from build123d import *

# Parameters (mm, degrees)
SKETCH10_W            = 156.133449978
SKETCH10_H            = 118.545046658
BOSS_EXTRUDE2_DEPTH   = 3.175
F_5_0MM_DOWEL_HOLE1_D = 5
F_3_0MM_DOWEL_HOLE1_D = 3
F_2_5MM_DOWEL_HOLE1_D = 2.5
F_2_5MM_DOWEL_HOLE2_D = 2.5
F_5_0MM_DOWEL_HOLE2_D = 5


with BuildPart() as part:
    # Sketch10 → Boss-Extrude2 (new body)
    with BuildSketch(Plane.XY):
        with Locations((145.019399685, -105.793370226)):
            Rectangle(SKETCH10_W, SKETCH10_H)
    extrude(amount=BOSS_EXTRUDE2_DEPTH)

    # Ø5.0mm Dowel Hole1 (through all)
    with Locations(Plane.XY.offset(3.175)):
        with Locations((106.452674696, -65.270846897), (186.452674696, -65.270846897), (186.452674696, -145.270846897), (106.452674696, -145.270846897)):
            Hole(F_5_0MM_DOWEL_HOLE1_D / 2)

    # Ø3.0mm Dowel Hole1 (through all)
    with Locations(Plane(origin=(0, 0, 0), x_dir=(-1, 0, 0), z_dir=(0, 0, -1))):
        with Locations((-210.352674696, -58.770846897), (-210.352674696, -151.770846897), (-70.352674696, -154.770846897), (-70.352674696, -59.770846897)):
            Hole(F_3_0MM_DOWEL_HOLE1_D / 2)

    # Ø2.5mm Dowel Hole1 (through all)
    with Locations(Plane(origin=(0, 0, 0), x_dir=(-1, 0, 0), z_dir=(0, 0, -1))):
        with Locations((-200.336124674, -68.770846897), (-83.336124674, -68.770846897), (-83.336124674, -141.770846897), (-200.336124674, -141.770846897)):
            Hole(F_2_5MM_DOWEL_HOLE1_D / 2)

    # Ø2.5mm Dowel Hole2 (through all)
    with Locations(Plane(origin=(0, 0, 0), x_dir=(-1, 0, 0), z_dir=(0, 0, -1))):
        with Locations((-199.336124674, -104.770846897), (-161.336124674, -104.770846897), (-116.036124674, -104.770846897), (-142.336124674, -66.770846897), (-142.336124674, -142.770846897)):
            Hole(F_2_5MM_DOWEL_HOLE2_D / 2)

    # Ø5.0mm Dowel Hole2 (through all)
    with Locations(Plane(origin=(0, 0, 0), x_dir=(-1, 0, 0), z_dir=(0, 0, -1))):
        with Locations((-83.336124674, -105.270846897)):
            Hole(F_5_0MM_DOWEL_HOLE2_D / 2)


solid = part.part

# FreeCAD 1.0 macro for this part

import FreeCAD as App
import Part
import Sketcher

doc = App.newDocument("Part")
params = doc.addObject("Spreadsheet::Sheet", "Params")
for row, (alias, value) in enumerate([
    ("pad1_length", "3.175 mm"),
    ("sketch2_diameter", "5 mm"),
    ("hole_diameter", "5 mm"),
    ("sketch3_diameter", "3 mm"),
    ("hole2_diameter", "3 mm"),
    ("sketch4_diameter", "2.5 mm"),
    ("hole3_diameter", "2.5 mm"),
    ("sketch5_diameter", "2.5 mm"),
    ("hole4_diameter", "2.5 mm"),
    ("sketch6_diameter", "5 mm"),
    ("hole5_diameter", "5 mm"),
], start=1):
    params.set(f"A{row}", alias)
    params.set(f"B{row}", "=" + value)
    params.setAlias(f"B{row}", alias)

body = doc.addObject("PartDesign::Body", "Body")

sketch1 = body.newObject("Sketcher::SketchObject", "Sketch")
sketch1.AttachmentSupport = (doc.getObject("XY_Plane"), [""])
sketch1.MapMode = "FlatFace"
sketch1.addGeometry([
    Part.LineSegment(App.Vector(66.952675, -46.520847, 0), App.Vector(66.952675, -165.065894, 0)),
    Part.LineSegment(App.Vector(66.952675, -165.065894, 0), App.Vector(223.086125, -165.065894, 0)),
    Part.LineSegment(App.Vector(223.086125, -165.065894, 0), App.Vector(223.086125, -46.520847, 0)),
    Part.LineSegment(App.Vector(223.086125, -46.520847, 0), App.Vector(66.952675, -46.520847, 0)),
], False)
sketch1.addConstraint([
    Sketcher.Constraint("Coincident", 0, 2, 1, 1),
    Sketcher.Constraint("Coincident", 1, 2, 2, 1),
    Sketcher.Constraint("Coincident", 2, 2, 3, 1),
    Sketcher.Constraint("Coincident", 3, 2, 0, 1),
    Sketcher.Constraint("Vertical", 0),
    Sketcher.Constraint("Horizontal", 1),
    Sketcher.Constraint("Vertical", 2),
    Sketcher.Constraint("Horizontal", 3),
    Sketcher.Constraint("DistanceX", 1, 1, 1, 2, 156.13345),
    Sketcher.Constraint("DistanceY", 0, 2, 0, 1, 118.545047),
    Sketcher.Constraint("DistanceX", -1, 1, 0, 2, 66.952675),
    Sketcher.Constraint("DistanceY", 0, 2, -1, 1, 165.065894),
])
pad1 = body.newObject("PartDesign::Pad", "Pad")
pad1.Profile = sketch1
pad1.setExpression("Length", "Params.pad1_length")

sketch2 = body.newObject("Sketcher::SketchObject", "Sketch001")
sketch2.AttachmentSupport = (doc.getObject("XY_Plane"), [""])
sketch2.MapMode = "FlatFace"
sketch2.AttachmentOffset = App.Placement(App.Vector(0, 0, 3.175), App.Rotation())
sketch2.addGeometry([
    Part.Circle(App.Vector(106.452675, -65.270847, 0), App.Vector(0, 0, 1), 2.5),
    Part.Circle(App.Vector(186.452675, -65.270847, 0), App.Vector(0, 0, 1), 2.5),
    Part.Circle(App.Vector(186.452675, -145.270847, 0), App.Vector(0, 0, 1), 2.5),
    Part.Circle(App.Vector(106.452675, -145.270847, 0), App.Vector(0, 0, 1), 2.5),
], False)
sketch2.addConstraint([
    Sketcher.Constraint("Equal", 0, 1),
    Sketcher.Constraint("Equal", 1, 2),
    Sketcher.Constraint("Equal", 2, 3),
    Sketcher.Constraint("Horizontal", 0, 3, 1, 3),
    Sketcher.Constraint("Horizontal", 2, 3, 3, 3),
    Sketcher.Constraint("Vertical", 1, 3, 2, 3),
    Sketcher.Constraint("Vertical", 0, 3, 3, 3),
    Sketcher.Constraint("Diameter", 0, 5.0),
    Sketcher.Constraint("DistanceX", 0, 3, 1, 3, 80.0),
    Sketcher.Constraint("DistanceY", 2, 3, 1, 3, 80.0),
    Sketcher.Constraint("DistanceX", -1, 1, 0, 3, 106.452675),
    Sketcher.Constraint("DistanceY", 0, 3, -1, 1, 65.270847),
])
sketch2.setExpression("Constraints[7]", "Params.sketch2_diameter")
doc.recompute()
hole = body.newObject("PartDesign::Hole", "Hole")
hole.Profile = sketch2
hole.ThreadType = "None"
hole.setExpression("Diameter", "Params.hole_diameter")
hole.DepthType = "ThroughAll"

sketch3 = body.newObject("Sketcher::SketchObject", "Sketch002")
sketch3.AttachmentSupport = (doc.getObject("XY_Plane"), [""])
sketch3.MapMode = "FlatFace"
sketch3.addGeometry([
    Part.Circle(App.Vector(210.352675, -58.770847, 0), App.Vector(0, 0, 1), 1.5),
    Part.Circle(App.Vector(210.352675, -151.770847, 0), App.Vector(0, 0, 1), 1.5),
    Part.Circle(App.Vector(70.352675, -154.770847, 0), App.Vector(0, 0, 1), 1.5),
    Part.Circle(App.Vector(70.352675, -59.770847, 0), App.Vector(0, 0, 1), 1.5),
], False)
sketch3.addConstraint([
    Sketcher.Constraint("Equal", 0, 1),
    Sketcher.Constraint("Equal", 1, 2),
    Sketcher.Constraint("Equal", 2, 3),
    Sketcher.Constraint("Vertical", 0, 3, 1, 3),
    Sketcher.Constraint("Vertical", 2, 3, 3, 3),
    Sketcher.Constraint("Diameter", 0, 3.0),
    Sketcher.Constraint("DistanceY", 1, 3, 0, 3, 93.0),
    Sketcher.Constraint("DistanceX", 2, 3, 1, 3, 140.0),
    Sketcher.Constraint("DistanceY", 2, 3, 1, 3, 3.0),
    Sketcher.Constraint("DistanceY", 2, 3, 3, 3, 95.0),
    Sketcher.Constraint("DistanceX", -1, 1, 0, 3, 210.352675),
    Sketcher.Constraint("DistanceY", 0, 3, -1, 1, 58.770847),
])
sketch3.setExpression("Constraints[5]", "Params.sketch3_diameter")
doc.recompute()
hole2 = body.newObject("PartDesign::Hole", "Hole001")
hole2.Profile = sketch3
hole2.ThreadType = "None"
hole2.setExpression("Diameter", "Params.hole2_diameter")
hole2.DepthType = "ThroughAll"
hole2.Reversed = True

sketch4 = body.newObject("Sketcher::SketchObject", "Sketch003")
sketch4.AttachmentSupport = (doc.getObject("XY_Plane"), [""])
sketch4.MapMode = "FlatFace"
sketch4.addGeometry([
    Part.Circle(App.Vector(200.336125, -68.770847, 0), App.Vector(0, 0, 1), 1.25),
    Part.Circle(App.Vector(83.336125, -68.770847, 0), App.Vector(0, 0, 1), 1.25),
    Part.Circle(App.Vector(83.336125, -141.770847, 0), App.Vector(0, 0, 1), 1.25),
    Part.Circle(App.Vector(200.336125, -141.770847, 0), App.Vector(0, 0, 1), 1.25),
], False)
sketch4.addConstraint([
    Sketcher.Constraint("Equal", 0, 1),
    Sketcher.Constraint("Equal", 1, 2),
    Sketcher.Constraint("Equal", 2, 3),
    Sketcher.Constraint("Horizontal", 0, 3, 1, 3),
    Sketcher.Constraint("Horizontal", 2, 3, 3, 3),
    Sketcher.Constraint("Vertical", 1, 3, 2, 3),
    Sketcher.Constraint("Vertical", 0, 3, 3, 3),
    Sketcher.Constraint("Diameter", 0, 2.5),
    Sketcher.Constraint("DistanceX", 1, 3, 0, 3, 117.0),
    Sketcher.Constraint("DistanceY", 2, 3, 1, 3, 73.0),
    Sketcher.Constraint("DistanceX", -1, 1, 0, 3, 200.336125),
    Sketcher.Constraint("DistanceY", 0, 3, -1, 1, 68.770847),
])
sketch4.setExpression("Constraints[7]", "Params.sketch4_diameter")
doc.recompute()
hole3 = body.newObject("PartDesign::Hole", "Hole002")
hole3.Profile = sketch4
hole3.ThreadType = "None"
hole3.setExpression("Diameter", "Params.hole3_diameter")
hole3.DepthType = "ThroughAll"
hole3.Reversed = True

sketch5 = body.newObject("Sketcher::SketchObject", "Sketch004")
sketch5.AttachmentSupport = (doc.getObject("XY_Plane"), [""])
sketch5.MapMode = "FlatFace"
sketch5.addGeometry([
    Part.Circle(App.Vector(199.336125, -104.770847, 0), App.Vector(0, 0, 1), 1.25),
    Part.Circle(App.Vector(161.336125, -104.770847, 0), App.Vector(0, 0, 1), 1.25),
    Part.Circle(App.Vector(116.036125, -104.770847, 0), App.Vector(0, 0, 1), 1.25),
    Part.Circle(App.Vector(142.336125, -66.770847, 0), App.Vector(0, 0, 1), 1.25),
    Part.Circle(App.Vector(142.336125, -142.770847, 0), App.Vector(0, 0, 1), 1.25),
], False)
sketch5.addConstraint([
    Sketcher.Constraint("Equal", 0, 1),
    Sketcher.Constraint("Equal", 1, 2),
    Sketcher.Constraint("Equal", 2, 3),
    Sketcher.Constraint("Equal", 3, 4),
    Sketcher.Constraint("Horizontal", 0, 3, 1, 3),
    Sketcher.Constraint("Horizontal", 1, 3, 2, 3),
    Sketcher.Constraint("Vertical", 3, 3, 4, 3),
    Sketcher.Constraint("Diameter", 0, 2.5),
    Sketcher.Constraint("DistanceX", 1, 3, 0, 3, 38.0),
    Sketcher.Constraint("DistanceX", 3, 3, 1, 3, 19.0),
    Sketcher.Constraint("DistanceY", 1, 3, 3, 3, 38.0),
    Sketcher.Constraint("DistanceY", 4, 3, 1, 3, 38.0),
    Sketcher.Constraint("DistanceX", 2, 3, 1, 3, 45.3),
    Sketcher.Constraint("DistanceX", -1, 1, 0, 3, 199.336125),
    Sketcher.Constraint("DistanceY", 0, 3, -1, 1, 104.770847),
])
sketch5.setExpression("Constraints[7]", "Params.sketch5_diameter")
doc.recompute()
hole4 = body.newObject("PartDesign::Hole", "Hole003")
hole4.Profile = sketch5
hole4.ThreadType = "None"
hole4.setExpression("Diameter", "Params.hole4_diameter")
hole4.DepthType = "ThroughAll"
hole4.Reversed = True

sketch6 = body.newObject("Sketcher::SketchObject", "Sketch005")
sketch6.AttachmentSupport = (doc.getObject("XY_Plane"), [""])
sketch6.MapMode = "FlatFace"
sketch6.addGeometry(Part.Circle(App.Vector(83.336125, -105.270847, 0), App.Vector(0, 0, 1), 2.5), False)
sketch6.addConstraint([
    Sketcher.Constraint("Diameter", 0, 5.0),
    Sketcher.Constraint("DistanceX", -1, 1, 0, 3, 83.336125),
    Sketcher.Constraint("DistanceY", 0, 3, -1, 1, 105.270847),
])
sketch6.setExpression("Constraints[0]", "Params.sketch6_diameter")
doc.recompute()
hole5 = body.newObject("PartDesign::Hole", "Hole004")
hole5.Profile = sketch6
hole5.ThreadType = "None"
hole5.setExpression("Diameter", "Params.hole5_diameter")
hole5.DepthType = "ThroughAll"
hole5.Reversed = True

doc.recompute()
